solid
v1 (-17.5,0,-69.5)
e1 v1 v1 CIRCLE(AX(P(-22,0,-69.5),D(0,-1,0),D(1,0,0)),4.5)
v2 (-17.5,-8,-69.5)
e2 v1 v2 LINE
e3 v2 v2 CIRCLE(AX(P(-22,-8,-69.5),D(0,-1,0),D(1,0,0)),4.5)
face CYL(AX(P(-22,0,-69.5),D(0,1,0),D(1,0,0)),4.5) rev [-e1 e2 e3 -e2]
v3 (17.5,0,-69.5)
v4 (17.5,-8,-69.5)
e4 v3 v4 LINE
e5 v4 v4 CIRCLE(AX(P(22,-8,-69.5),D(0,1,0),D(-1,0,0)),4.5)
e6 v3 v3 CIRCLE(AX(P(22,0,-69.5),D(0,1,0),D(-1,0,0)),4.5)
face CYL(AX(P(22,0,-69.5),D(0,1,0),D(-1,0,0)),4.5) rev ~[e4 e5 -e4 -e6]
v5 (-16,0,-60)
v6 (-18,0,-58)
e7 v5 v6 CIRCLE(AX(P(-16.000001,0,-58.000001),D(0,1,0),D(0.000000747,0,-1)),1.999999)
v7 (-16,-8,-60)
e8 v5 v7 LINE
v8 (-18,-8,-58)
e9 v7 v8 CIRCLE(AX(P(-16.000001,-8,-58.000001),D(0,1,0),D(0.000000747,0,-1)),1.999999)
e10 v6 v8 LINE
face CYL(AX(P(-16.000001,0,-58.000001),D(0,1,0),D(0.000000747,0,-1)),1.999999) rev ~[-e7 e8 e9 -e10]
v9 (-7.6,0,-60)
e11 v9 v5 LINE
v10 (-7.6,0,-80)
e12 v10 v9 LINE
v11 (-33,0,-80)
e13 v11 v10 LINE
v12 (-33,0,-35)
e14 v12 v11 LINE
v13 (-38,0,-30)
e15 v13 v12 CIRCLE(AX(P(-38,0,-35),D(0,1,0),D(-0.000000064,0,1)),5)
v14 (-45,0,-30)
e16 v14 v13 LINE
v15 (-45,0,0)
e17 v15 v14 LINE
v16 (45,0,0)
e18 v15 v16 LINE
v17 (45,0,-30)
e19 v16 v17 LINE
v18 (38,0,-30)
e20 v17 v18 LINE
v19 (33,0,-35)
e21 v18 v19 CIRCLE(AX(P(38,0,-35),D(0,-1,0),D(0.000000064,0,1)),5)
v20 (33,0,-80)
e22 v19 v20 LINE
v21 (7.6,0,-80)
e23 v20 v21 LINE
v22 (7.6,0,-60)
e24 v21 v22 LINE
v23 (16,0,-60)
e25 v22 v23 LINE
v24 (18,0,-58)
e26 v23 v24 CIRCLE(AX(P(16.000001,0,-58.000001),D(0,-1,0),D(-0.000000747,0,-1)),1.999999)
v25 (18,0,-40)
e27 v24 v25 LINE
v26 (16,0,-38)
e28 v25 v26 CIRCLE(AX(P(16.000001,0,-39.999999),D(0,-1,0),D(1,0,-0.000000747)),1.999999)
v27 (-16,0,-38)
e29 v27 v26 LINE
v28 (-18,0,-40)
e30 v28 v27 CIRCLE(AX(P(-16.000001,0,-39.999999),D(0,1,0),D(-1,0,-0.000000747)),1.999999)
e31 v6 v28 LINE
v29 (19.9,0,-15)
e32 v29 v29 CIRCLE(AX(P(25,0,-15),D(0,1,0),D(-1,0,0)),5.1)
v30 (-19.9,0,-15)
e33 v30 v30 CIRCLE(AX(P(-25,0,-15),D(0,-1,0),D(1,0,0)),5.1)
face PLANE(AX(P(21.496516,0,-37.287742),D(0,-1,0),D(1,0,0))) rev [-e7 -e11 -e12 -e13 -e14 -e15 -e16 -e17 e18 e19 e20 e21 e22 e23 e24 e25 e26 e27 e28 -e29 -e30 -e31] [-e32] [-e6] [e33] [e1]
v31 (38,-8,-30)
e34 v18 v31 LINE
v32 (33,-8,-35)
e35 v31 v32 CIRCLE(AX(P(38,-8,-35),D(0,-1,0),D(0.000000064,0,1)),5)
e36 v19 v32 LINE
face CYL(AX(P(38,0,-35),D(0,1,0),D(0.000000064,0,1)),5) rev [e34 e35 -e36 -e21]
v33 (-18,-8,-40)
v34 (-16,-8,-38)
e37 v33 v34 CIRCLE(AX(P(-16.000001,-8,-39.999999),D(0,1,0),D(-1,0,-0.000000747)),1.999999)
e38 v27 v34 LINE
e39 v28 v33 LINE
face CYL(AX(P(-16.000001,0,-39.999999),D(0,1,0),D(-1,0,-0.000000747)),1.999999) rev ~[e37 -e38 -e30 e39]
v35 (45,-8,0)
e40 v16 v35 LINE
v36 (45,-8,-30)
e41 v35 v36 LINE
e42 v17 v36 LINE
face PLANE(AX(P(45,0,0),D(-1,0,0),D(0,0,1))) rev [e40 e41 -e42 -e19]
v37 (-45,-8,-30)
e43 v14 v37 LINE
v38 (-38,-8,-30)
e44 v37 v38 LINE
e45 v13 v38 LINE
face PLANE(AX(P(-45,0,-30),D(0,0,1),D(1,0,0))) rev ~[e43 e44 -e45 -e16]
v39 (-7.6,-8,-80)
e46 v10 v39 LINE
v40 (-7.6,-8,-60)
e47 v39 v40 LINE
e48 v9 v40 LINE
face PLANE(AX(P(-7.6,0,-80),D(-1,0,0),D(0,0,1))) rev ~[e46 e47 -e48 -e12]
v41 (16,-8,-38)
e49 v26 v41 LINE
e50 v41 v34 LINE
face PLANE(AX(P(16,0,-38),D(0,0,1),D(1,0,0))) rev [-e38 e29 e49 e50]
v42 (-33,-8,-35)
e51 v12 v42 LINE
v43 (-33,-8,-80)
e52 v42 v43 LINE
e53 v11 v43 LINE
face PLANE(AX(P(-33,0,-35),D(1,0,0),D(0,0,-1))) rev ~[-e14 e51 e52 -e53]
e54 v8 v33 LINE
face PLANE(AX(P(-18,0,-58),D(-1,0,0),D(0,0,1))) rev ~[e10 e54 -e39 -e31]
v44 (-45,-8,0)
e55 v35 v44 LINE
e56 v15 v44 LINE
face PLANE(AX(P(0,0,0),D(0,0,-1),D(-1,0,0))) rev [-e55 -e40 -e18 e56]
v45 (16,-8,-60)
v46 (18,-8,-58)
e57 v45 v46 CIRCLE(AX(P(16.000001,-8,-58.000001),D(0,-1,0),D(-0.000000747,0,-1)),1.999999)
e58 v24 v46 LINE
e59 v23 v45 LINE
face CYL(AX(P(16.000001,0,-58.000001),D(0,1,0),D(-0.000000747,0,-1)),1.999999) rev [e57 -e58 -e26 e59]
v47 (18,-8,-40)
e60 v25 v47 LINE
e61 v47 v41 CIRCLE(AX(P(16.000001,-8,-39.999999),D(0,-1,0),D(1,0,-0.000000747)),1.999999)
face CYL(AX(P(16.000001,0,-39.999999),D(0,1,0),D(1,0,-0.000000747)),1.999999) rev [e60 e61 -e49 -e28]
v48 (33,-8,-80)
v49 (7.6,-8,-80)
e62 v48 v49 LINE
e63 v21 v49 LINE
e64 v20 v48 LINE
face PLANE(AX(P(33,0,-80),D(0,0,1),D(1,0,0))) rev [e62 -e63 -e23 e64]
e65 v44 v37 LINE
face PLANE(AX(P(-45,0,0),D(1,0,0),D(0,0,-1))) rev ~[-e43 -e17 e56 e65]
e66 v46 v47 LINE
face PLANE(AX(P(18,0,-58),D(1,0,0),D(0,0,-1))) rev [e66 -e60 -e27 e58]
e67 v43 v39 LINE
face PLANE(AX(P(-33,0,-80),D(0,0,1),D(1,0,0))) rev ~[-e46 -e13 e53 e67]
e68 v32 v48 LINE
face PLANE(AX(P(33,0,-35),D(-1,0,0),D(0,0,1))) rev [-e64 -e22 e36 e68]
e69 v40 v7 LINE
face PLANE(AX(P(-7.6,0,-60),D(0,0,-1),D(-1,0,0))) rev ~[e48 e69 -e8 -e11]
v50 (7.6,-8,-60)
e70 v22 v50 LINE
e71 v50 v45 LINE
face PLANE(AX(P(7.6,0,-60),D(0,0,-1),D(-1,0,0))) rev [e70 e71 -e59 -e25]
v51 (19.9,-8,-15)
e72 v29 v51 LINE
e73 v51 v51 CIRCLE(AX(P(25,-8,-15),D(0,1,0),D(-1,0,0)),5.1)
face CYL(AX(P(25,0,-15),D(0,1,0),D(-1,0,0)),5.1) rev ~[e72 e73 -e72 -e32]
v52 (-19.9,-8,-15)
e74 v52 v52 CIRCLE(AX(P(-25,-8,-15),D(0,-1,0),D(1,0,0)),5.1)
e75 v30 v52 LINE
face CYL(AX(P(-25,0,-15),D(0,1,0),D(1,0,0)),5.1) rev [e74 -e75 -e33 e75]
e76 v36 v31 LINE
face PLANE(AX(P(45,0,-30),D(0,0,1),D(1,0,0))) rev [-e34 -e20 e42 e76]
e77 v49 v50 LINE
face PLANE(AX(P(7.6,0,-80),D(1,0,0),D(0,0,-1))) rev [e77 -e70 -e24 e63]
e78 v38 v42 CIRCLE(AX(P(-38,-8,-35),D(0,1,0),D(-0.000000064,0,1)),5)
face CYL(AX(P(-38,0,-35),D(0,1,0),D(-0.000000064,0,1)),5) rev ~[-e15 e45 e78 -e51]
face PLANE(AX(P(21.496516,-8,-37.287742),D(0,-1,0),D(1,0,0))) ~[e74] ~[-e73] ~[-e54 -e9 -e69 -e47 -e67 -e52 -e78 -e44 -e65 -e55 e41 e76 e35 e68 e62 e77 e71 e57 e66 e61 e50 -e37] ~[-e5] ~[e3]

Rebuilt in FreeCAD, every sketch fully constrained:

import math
import FreeCAD as App
import Part
import Sketcher
Q = App.Units.Quantity

doc = App.newDocument("Part")
body = doc.addObject("PartDesign::Body", "Body")

# Sketch on XZ plane
sketch1 = doc.addObject("Sketcher::SketchObject", "Sketch")
body.addObject(sketch1)
sketch1.AttachmentSupport = (doc.XZ_Plane, [""])
sketch1.MapMode = "FlatFace"
sketch1.addGeometry([
    Part.LineSegment(App.Vector(0, -38, 0), App.Vector(0, 0, 0)),  # 0
    Part.LineSegment(App.Vector(0, 0, 0), App.Vector(-45, 0, 0)),  # 1
    Part.LineSegment(App.Vector(-45, 0, 0), App.Vector(-45, -30, 0)),  # 2
    Part.LineSegment(App.Vector(-45, -30, 0), App.Vector(-38, -30, 0)),  # 3
    Part.ArcOfCircle(Part.Circle(App.Vector(-38, -35, 0), App.Vector(0, 0, 1), 5), math.radians(-0.000004), math.radians(90.000004)),  # 4
    Part.LineSegment(App.Vector(-33, -35, 0), App.Vector(-33, -80, 0)),  # 5
    Part.LineSegment(App.Vector(-33, -80, 0), App.Vector(-7.6, -80, 0)),  # 6
    Part.LineSegment(App.Vector(-7.6, -80, 0), App.Vector(-7.6, -60, 0)),  # 7
    Part.LineSegment(App.Vector(-7.6, -60, 0), App.Vector(-16, -60, 0)),  # 8
    Part.ArcOfCircle(Part.Circle(App.Vector(-16.000001, -58.000001, 0), App.Vector(0, 0, 1), 1.999999), math.radians(179.999957), math.radians(270.000043)),  # 9
    Part.LineSegment(App.Vector(-18, -58, 0), App.Vector(-18, -40, 0)),  # 10
    Part.ArcOfCircle(Part.Circle(App.Vector(-16.000001, -39.999999, 0), App.Vector(0, 0, 1), 1.999999), math.radians(89.999957), math.radians(180.000043)),  # 11
    Part.LineSegment(App.Vector(-16, -38, 0), App.Vector(0, -38, 0)),  # 12
    Part.Circle(App.Vector(-22, -69.5, 0), App.Vector(0, 0, 1), 4.5),  # 13
    Part.Circle(App.Vector(-25, -15, 0), App.Vector(0, 0, 1), 5.1),  # 14
], False)
sketch1.addConstraint([
    Sketcher.Constraint("Coincident", 0, 2, 1, 1),
    Sketcher.Constraint("Coincident", 1, 2, 2, 1),
    Sketcher.Constraint("Coincident", 2, 2, 3, 1),
    Sketcher.Constraint("Tangent", 3, 2, 4, 2),
    Sketcher.Constraint("Tangent", 4, 1, 5, 1),
    Sketcher.Constraint("Coincident", 5, 2, 6, 1),
    Sketcher.Constraint("Coincident", 6, 2, 7, 1),
    Sketcher.Constraint("Coincident", 7, 2, 8, 1),
    Sketcher.Constraint("Tangent", 8, 2, 9, 2),
    Sketcher.Constraint("Tangent", 9, 1, 10, 1),
    Sketcher.Constraint("Tangent", 10, 2, 11, 2),
    Sketcher.Constraint("Tangent", 11, 1, 12, 1),
    Sketcher.Constraint("Coincident", 12, 2, 0, 1),
    Sketcher.Constraint("Vertical", 0),
    Sketcher.Constraint("Horizontal", 1),
    Sketcher.Constraint("Vertical", 2),
    Sketcher.Constraint("Horizontal", 3),
    Sketcher.Constraint("Vertical", 5),
    Sketcher.Constraint("Horizontal", 6),
    Sketcher.Constraint("Vertical", 7),
    Sketcher.Constraint("Horizontal", 8),
    Sketcher.Constraint("Vertical", 10),
    Sketcher.Constraint("Horizontal", 12),
    Sketcher.Constraint("Coincident", 0, 2, -1, 1),
    Sketcher.Constraint("Equal", 9, 11),
    Sketcher.Constraint("Equal", 1, 5),
    Sketcher.Constraint("Diameter", 13, Q("9 mm")),
    Sketcher.Constraint("Radius", 4, Q("5 mm")),
    Sketcher.Constraint("Radius", 9, Q("1.999999 mm")),
    Sketcher.Constraint("Diameter", 14, Q("10.2 mm")),
    Sketcher.Constraint("DistanceX", 1, 2, 1, 1, Q("45 mm")),
    Sketcher.Constraint("DistanceX", 3, 1, 3, 2, Q("7 mm")),
    Sketcher.Constraint("DistanceX", 12, 1, 12, 2, Q("16 mm")),
    Sketcher.Constraint("DistanceY", 0, 1, 0, 2, Q("38 mm")),
    Sketcher.Constraint("DistanceY", 2, 2, 2, 1, Q("30 mm")),
    Sketcher.Constraint("DistanceY", 7, 1, 7, 2, Q("20 mm")),
    Sketcher.Constraint("DistanceX", 6, 1, 6, 2, Q("25.4 mm")),
    Sketcher.Constraint("DistanceX", 13, 3, -1, 1, Q("22 mm")),
    Sketcher.Constraint("DistanceX", 14, 3, -1, 1, Q("25 mm")),
    Sketcher.Constraint("DistanceY", 14, 3, -1, 1, Q("15 mm")),
    Sketcher.Constraint("DistanceY", 13, 3, -1, 1, Q("69.5 mm")),
])
pad1 = doc.addObject("PartDesign::Pad", "Pad")
body.addObject(pad1)
pad1.Profile = sketch1
pad1.Length = 8
body2 = doc.addObject("PartDesign::Body", "Body001")
doc.recompute()

body2.BaseFeature = body
doc.recompute()

mirroring = doc.addObject("Part::Mirroring", "Mirroring")
mirroring.Source = body
mirroring.Base = App.Vector(0, -4, -19)
mirroring.Normal = App.Vector(1, 0, 0)
body3 = doc.addObject("PartDesign::Body", "Body002")
body3.BaseFeature = mirroring
boolean = doc.addObject("PartDesign::Boolean", "Boolean")
body2.addObject(boolean)
boolean.Type = "Fuse"
boolean.addObjects([body3])
doc.recompute()
mirroring.Visibility = False

doc.recompute()
